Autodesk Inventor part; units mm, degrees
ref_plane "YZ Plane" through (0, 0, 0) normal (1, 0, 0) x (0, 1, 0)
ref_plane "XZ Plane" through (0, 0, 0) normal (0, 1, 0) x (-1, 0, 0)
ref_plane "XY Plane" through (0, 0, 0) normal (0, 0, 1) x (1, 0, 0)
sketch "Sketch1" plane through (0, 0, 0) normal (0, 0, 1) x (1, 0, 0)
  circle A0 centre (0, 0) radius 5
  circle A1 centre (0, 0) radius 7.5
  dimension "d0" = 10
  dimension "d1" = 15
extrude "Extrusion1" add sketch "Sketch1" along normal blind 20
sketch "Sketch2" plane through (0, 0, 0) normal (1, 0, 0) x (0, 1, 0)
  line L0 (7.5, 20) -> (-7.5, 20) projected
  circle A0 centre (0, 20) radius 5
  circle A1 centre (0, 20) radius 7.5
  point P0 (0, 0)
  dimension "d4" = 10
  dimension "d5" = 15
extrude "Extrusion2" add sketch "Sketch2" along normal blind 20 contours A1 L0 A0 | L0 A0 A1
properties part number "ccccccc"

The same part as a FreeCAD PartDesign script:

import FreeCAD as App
import Part
import Sketcher
Q = App.Units.Quantity

doc = App.newDocument("Part")
params = doc.addObject("Spreadsheet::Sheet", "Params")
for row, (alias, value) in enumerate([
    ("sketch1_diameter", "15 mm"),
    ("sketch1_diameter2", "10 mm"),
    ("pad1_length", "20 mm"),
    ("sketch2_diameter", "15 mm"),
    ("sketch2_diameter2", "10 mm"),
    ("pad2_length", "20 mm"),
], start=1):
    params.set(f"A{row}", alias)
    params.set(f"B{row}", "=" + value)
    params.setAlias(f"B{row}", alias)

body = doc.addObject("PartDesign::Body", "Body")

# Sketch on XY plane
sketch1 = body.newObject("Sketcher::SketchObject", "Sketch")
sketch1.AttachmentSupport = (doc.getObject("XY_Plane"), [""])
sketch1.MapMode = "FlatFace"
sketch1.addGeometry(Part.Circle(App.Vector(0, 0, 0), App.Vector(0, 0, 1), 7.5), False)
sketch1.addGeometry(Part.Circle(App.Vector(0, 0, 0), App.Vector(0, 0, 1), 5), False)
sketch1.addConstraint(Sketcher.Constraint("Coincident", 0, 3, -1, 1))
sketch1.addConstraint(Sketcher.Constraint("Coincident", 1, 3, -1, 1))
sketch1.addConstraint(Sketcher.Constraint("Diameter", 0, Q("15 mm")))
sketch1.addConstraint(Sketcher.Constraint("Diameter", 1, Q("10 mm")))
sketch1.setExpression("Constraints[2]", "Params.sketch1_diameter")
sketch1.setExpression("Constraints[3]", "Params.sketch1_diameter2")
pad1 = body.newObject("PartDesign::Pad", "Pad")
pad1.Profile = sketch1
pad1.setExpression("Length", "Params.pad1_length")

# Sketch on YZ plane
sketch2 = body.newObject("Sketcher::SketchObject", "Sketch001")
sketch2.AttachmentSupport = (doc.getObject("YZ_Plane"), [""])
sketch2.MapMode = "FlatFace"
sketch2.addGeometry(Part.Circle(App.Vector(0, 20, 0), App.Vector(0, 0, 1), 7.5), False)
sketch2.addGeometry(Part.Circle(App.Vector(0, 20, 0), App.Vector(0, 0, 1), 5), False)
sketch2.addConstraint(Sketcher.Constraint("Coincident", 1, 3, 0, 3))
sketch2.addConstraint(Sketcher.Constraint("PointOnObject", 0, 3, -2))
sketch2.addConstraint(Sketcher.Constraint("Diameter", 0, Q("15 mm")))
sketch2.addConstraint(Sketcher.Constraint("Diameter", 1, Q("10 mm")))
sketch2.addConstraint(Sketcher.Constraint("DistanceY", -1, 1, 0, 3, Q("20 mm")))
sketch2.setExpression("Constraints[2]", "Params.sketch2_diameter")
sketch2.setExpression("Constraints[3]", "Params.sketch2_diameter2")
pad2 = body.newObject("PartDesign::Pad", "Pad001")
pad2.Profile = sketch2
pad2.setExpression("Length", "Params.pad2_length")

doc.recompute()
